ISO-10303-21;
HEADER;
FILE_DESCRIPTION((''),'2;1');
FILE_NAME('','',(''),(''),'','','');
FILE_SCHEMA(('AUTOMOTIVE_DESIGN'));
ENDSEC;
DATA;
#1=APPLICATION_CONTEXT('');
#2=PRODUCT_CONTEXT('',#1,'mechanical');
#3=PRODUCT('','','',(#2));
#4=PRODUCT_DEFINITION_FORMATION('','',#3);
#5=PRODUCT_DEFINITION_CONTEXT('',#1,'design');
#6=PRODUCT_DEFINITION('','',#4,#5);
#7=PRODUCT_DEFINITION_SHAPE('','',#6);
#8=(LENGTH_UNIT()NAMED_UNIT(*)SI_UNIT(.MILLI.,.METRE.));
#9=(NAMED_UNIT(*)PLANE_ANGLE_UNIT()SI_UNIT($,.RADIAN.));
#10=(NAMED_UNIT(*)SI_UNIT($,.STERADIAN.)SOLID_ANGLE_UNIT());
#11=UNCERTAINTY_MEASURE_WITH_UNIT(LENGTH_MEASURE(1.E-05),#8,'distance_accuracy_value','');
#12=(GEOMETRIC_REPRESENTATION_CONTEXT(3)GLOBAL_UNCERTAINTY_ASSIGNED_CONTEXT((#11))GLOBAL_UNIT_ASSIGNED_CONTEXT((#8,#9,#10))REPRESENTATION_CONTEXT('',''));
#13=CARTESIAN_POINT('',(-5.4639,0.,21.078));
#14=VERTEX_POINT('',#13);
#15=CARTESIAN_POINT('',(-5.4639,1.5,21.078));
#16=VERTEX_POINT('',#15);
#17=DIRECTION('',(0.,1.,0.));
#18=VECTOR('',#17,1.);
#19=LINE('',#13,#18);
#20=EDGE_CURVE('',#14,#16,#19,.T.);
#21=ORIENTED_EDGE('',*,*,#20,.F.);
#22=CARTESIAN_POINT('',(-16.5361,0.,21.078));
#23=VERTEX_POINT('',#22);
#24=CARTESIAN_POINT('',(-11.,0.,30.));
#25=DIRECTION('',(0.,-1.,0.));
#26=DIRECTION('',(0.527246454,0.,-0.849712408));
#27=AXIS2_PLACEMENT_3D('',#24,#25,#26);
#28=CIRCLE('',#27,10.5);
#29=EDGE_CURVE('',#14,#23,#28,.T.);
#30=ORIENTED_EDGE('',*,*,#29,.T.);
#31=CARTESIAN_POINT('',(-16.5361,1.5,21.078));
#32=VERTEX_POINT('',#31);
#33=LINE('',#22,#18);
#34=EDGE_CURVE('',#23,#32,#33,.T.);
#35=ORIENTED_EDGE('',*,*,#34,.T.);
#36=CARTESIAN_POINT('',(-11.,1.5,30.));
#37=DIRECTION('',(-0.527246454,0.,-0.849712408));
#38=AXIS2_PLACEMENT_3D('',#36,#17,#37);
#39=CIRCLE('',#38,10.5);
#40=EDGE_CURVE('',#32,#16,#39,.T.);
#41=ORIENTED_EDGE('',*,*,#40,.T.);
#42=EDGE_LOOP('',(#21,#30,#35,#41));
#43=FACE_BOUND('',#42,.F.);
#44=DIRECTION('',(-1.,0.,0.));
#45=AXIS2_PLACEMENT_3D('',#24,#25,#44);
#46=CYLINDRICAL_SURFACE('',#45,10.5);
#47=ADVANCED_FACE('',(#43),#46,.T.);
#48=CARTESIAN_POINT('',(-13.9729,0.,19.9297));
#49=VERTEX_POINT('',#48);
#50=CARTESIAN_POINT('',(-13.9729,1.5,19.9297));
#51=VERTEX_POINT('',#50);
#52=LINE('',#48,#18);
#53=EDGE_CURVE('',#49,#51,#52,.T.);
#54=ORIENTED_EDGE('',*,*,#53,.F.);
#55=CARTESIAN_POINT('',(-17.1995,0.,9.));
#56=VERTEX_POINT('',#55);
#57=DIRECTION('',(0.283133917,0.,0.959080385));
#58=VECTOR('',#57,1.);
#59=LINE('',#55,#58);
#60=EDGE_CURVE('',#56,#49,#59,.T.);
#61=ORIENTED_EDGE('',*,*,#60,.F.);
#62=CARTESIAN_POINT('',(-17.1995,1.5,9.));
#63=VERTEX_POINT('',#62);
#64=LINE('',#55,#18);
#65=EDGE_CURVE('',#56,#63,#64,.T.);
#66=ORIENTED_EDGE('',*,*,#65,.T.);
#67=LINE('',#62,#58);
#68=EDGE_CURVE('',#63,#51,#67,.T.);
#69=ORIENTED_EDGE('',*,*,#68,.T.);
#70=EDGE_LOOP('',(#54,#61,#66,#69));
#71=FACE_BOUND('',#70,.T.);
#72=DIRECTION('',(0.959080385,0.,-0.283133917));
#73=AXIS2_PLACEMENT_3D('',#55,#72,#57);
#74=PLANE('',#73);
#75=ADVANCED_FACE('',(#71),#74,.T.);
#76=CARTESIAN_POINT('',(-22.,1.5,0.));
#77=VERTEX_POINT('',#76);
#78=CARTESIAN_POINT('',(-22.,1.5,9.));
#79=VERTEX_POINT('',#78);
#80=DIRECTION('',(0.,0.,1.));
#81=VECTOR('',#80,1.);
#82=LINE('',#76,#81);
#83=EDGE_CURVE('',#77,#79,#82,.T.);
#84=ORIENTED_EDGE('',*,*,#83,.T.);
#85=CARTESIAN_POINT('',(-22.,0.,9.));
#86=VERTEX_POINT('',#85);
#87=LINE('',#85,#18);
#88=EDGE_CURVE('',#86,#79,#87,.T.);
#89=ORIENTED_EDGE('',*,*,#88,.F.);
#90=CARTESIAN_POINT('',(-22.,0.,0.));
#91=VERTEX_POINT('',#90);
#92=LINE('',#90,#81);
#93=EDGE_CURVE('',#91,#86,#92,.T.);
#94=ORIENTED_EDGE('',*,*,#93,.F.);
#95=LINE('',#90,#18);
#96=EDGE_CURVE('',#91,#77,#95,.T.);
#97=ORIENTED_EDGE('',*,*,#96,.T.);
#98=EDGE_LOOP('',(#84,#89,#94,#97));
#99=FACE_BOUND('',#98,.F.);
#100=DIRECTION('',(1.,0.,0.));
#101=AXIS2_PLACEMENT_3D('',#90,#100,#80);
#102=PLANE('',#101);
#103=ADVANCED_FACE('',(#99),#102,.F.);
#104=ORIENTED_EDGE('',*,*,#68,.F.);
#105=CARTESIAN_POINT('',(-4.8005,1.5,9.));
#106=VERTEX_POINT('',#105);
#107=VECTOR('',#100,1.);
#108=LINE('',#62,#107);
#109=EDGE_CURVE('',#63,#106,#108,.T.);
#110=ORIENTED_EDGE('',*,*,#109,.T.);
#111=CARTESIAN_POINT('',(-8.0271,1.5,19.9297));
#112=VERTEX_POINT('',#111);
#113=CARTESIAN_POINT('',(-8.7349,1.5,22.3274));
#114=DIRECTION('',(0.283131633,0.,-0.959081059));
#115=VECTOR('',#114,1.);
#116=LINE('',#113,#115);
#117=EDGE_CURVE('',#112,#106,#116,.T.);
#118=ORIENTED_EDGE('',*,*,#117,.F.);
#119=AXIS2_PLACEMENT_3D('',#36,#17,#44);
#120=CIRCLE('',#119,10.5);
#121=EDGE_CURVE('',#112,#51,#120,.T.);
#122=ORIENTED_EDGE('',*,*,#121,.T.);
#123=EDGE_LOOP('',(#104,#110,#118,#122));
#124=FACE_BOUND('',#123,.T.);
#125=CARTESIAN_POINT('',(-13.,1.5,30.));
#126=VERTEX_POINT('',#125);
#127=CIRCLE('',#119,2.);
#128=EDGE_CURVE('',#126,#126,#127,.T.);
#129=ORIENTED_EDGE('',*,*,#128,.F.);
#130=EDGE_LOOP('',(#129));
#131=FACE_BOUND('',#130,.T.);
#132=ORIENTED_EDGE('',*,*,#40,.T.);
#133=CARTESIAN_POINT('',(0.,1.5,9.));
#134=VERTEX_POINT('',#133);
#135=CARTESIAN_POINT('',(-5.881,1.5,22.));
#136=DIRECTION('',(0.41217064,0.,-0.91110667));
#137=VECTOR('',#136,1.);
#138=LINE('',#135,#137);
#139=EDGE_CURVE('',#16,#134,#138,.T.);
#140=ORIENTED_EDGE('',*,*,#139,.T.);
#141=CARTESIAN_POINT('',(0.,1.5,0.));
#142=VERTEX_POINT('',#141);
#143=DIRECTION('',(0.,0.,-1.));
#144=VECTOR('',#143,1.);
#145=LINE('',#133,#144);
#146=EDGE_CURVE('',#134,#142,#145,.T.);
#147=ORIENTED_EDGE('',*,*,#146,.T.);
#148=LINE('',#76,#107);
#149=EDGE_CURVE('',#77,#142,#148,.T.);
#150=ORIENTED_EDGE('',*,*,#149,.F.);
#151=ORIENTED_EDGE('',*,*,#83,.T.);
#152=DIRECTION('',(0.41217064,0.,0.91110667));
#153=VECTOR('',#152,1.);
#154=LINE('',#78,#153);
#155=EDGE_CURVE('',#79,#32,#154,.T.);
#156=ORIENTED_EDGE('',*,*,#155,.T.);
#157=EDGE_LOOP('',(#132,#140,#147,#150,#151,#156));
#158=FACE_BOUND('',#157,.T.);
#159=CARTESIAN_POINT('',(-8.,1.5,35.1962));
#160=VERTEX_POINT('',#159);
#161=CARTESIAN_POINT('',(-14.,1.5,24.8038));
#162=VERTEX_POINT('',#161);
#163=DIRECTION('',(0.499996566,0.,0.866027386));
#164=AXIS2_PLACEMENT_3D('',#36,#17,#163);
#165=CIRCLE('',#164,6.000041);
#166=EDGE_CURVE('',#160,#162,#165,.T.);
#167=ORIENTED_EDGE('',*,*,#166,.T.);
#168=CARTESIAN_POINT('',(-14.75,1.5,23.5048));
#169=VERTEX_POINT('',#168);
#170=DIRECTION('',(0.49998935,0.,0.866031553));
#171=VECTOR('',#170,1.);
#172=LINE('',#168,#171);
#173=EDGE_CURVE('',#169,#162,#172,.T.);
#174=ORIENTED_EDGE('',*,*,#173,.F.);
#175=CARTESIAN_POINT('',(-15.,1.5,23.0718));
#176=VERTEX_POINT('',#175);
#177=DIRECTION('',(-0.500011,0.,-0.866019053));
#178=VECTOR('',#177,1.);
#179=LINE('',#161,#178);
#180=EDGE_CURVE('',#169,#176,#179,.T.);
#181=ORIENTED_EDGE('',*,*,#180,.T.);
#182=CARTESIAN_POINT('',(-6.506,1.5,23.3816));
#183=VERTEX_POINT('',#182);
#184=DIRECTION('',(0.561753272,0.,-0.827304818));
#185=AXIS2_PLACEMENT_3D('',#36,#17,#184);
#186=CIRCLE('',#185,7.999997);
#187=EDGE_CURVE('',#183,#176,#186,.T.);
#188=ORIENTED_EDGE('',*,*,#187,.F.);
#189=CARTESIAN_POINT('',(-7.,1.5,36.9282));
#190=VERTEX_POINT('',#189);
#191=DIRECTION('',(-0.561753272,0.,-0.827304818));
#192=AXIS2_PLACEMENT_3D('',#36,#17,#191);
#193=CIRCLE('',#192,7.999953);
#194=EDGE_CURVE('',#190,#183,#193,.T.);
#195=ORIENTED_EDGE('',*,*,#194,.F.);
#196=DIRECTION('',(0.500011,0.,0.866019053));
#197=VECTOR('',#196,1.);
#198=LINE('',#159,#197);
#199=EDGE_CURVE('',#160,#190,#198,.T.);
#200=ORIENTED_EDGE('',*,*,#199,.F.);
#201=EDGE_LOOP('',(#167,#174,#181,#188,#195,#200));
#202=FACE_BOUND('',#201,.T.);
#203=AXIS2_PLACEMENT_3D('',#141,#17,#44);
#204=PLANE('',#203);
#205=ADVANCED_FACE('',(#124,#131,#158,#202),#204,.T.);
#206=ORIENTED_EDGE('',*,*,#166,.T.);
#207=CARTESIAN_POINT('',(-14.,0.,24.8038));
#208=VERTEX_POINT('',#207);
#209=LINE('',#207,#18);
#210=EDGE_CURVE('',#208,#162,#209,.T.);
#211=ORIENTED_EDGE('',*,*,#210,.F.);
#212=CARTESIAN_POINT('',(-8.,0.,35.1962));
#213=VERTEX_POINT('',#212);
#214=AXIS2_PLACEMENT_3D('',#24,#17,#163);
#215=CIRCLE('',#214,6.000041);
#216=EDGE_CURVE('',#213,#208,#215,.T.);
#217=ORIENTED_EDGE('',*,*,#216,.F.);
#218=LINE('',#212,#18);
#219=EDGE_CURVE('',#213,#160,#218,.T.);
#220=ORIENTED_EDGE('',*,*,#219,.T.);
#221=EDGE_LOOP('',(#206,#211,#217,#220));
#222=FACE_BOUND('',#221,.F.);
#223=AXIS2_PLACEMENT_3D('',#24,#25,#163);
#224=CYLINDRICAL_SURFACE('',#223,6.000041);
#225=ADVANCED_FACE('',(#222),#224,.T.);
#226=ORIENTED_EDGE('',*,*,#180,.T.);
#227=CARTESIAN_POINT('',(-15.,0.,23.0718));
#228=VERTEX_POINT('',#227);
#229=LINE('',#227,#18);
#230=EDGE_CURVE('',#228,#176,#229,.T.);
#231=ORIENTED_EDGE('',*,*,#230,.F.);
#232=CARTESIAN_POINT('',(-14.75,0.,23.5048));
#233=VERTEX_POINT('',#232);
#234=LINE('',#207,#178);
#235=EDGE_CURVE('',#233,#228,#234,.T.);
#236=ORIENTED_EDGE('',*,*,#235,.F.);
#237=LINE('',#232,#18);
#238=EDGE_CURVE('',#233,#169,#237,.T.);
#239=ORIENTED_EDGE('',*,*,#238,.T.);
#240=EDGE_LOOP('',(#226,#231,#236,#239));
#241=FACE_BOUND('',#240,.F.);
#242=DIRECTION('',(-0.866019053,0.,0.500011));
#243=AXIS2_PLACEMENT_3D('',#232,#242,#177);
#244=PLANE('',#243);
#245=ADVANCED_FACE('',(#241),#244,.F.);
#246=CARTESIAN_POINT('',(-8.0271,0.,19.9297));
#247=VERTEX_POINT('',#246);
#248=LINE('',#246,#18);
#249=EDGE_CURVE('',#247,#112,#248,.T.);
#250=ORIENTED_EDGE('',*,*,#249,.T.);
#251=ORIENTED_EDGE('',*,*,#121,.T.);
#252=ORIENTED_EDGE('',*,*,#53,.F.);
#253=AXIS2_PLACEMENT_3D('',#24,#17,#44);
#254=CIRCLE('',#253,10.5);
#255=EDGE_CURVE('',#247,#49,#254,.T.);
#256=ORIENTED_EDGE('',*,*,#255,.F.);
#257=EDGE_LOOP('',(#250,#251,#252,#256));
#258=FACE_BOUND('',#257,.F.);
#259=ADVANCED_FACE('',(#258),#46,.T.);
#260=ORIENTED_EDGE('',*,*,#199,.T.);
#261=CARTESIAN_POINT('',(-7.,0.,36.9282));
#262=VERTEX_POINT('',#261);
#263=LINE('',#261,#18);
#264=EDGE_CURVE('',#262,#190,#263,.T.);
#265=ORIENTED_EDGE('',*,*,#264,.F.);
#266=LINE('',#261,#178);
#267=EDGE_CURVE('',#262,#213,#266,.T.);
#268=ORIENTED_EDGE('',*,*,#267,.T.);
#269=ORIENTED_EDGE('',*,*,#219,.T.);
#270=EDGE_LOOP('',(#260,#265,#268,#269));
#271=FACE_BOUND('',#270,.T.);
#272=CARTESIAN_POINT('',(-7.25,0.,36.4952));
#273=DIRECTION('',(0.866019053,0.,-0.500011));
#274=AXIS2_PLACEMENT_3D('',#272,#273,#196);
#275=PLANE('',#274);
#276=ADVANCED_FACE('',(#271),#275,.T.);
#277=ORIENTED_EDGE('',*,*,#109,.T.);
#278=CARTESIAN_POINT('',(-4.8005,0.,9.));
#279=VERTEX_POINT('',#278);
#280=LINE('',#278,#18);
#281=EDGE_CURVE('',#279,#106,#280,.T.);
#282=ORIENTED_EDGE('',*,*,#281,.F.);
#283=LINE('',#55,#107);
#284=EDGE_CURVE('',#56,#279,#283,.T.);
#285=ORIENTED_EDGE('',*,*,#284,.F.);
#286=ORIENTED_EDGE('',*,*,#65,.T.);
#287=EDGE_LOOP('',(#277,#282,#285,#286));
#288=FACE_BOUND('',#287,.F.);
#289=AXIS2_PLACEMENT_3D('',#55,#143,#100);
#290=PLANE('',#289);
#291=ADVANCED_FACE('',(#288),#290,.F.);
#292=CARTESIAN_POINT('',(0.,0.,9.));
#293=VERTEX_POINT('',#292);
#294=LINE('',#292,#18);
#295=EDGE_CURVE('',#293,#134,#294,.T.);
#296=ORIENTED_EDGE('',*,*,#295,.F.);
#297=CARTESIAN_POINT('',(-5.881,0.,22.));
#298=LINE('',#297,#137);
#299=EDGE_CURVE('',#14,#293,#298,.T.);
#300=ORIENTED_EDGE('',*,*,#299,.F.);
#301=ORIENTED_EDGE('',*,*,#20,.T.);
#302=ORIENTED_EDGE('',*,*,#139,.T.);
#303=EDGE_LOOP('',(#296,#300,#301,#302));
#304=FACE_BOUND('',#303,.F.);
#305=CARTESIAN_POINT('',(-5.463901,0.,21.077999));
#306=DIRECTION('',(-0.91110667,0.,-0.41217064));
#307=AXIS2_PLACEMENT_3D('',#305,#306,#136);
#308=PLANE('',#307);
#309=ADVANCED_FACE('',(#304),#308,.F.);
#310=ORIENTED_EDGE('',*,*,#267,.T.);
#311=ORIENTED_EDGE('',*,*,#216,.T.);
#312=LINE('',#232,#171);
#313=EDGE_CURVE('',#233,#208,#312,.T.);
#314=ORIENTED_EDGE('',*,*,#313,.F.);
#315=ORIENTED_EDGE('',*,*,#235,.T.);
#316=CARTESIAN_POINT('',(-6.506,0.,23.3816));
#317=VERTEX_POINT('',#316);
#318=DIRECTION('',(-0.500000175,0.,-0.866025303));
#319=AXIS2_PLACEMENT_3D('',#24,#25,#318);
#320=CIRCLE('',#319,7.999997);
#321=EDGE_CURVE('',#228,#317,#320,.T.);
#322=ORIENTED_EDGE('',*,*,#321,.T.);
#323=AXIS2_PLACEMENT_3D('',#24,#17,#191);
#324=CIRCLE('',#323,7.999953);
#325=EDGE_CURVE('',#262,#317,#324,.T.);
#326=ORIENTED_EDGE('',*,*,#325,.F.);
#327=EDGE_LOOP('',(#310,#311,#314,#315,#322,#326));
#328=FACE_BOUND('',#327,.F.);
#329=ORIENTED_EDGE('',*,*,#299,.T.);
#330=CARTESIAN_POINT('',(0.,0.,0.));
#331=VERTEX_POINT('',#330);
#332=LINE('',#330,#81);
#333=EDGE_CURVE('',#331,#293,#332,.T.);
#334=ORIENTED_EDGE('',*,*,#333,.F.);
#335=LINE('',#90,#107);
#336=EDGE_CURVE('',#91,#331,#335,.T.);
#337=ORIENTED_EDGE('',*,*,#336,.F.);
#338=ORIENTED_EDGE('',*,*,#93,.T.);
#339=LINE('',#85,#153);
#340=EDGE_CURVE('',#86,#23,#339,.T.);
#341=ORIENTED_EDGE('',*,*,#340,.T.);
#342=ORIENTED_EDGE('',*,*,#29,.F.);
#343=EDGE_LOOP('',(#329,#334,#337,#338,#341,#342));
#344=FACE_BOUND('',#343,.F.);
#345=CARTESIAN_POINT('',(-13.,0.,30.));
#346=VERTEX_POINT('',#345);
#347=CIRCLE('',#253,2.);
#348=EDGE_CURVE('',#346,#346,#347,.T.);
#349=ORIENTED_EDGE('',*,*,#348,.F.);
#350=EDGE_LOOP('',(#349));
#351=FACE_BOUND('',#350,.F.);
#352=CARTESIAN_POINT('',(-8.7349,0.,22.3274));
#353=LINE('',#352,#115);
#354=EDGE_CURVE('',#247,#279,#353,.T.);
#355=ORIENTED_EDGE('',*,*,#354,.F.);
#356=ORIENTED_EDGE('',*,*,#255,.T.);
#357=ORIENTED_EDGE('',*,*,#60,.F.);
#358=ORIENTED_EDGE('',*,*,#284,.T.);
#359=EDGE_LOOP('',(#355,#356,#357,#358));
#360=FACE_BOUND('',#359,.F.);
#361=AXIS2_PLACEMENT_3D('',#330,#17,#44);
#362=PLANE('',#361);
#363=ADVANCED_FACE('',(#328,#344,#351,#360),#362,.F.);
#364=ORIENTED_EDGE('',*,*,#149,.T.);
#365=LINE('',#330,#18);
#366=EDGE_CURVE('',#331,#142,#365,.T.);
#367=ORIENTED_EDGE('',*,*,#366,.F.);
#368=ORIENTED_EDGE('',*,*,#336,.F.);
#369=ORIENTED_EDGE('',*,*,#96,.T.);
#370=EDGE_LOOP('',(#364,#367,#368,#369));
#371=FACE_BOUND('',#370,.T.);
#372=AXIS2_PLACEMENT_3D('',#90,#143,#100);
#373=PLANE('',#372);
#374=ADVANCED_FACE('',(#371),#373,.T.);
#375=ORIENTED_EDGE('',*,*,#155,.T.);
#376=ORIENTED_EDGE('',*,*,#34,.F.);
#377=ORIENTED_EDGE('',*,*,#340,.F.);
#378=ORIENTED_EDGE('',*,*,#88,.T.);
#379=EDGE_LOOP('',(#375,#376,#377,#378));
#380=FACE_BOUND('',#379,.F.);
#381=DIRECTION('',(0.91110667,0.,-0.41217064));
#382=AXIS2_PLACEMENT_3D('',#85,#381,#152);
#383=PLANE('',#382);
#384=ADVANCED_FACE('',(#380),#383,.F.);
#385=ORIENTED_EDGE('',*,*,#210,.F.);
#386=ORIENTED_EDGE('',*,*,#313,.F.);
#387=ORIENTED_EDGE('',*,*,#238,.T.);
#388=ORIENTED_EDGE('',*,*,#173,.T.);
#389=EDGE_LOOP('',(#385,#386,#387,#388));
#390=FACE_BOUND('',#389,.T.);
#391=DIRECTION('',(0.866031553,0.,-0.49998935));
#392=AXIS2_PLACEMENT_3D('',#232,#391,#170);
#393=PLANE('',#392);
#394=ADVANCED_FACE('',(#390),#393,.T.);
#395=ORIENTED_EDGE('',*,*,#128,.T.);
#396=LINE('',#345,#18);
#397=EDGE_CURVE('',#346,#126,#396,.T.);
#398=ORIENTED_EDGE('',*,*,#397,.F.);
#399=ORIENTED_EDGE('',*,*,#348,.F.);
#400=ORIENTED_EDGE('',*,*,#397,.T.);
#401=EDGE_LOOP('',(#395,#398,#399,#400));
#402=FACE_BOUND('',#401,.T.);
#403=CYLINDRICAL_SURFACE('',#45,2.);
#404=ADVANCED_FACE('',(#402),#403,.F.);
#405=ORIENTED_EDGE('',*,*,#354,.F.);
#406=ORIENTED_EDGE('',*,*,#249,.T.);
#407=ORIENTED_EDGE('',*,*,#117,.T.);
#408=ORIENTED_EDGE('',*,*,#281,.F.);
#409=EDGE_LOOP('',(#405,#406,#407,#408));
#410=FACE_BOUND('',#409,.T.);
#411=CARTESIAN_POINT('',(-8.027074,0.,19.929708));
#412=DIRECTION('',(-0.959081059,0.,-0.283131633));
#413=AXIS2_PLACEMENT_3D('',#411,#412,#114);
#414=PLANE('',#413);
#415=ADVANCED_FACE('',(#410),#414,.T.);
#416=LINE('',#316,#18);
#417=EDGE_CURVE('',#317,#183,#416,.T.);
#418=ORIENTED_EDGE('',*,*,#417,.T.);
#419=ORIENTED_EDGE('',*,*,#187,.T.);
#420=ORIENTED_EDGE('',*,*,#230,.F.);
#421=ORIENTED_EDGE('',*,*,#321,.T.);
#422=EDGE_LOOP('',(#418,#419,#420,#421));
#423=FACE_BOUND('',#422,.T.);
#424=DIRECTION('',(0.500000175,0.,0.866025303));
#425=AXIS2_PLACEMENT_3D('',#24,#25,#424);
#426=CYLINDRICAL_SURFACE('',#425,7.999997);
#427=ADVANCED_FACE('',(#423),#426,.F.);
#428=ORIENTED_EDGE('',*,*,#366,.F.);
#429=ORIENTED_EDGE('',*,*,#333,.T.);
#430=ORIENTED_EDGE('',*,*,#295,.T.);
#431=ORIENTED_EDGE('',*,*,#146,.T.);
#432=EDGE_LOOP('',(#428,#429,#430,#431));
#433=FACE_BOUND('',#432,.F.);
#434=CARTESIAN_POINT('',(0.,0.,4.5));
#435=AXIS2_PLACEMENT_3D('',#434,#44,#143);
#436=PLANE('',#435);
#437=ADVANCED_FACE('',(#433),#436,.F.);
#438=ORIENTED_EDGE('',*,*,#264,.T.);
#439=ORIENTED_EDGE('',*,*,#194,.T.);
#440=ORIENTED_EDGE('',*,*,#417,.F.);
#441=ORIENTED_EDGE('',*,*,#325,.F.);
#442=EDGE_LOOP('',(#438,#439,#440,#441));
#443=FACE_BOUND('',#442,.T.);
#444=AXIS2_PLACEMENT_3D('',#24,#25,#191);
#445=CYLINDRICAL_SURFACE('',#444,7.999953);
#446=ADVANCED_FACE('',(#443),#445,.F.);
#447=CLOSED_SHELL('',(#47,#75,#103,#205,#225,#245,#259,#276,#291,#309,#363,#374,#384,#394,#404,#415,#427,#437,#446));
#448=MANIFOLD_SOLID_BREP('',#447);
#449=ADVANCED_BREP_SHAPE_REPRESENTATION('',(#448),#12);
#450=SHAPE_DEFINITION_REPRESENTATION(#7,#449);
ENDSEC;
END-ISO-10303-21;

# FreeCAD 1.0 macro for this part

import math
import FreeCAD as App
import Part
import Sketcher
from FreeCAD import Vector
Q = App.Units.Quantity

doc = App.newDocument("Part")
body = doc.addObject("PartDesign::Body", "Body")

# Sketch on XZ plane
sketch1 = doc.addObject("Sketcher::SketchObject", "Sketch")
body.addObject(sketch1)
sketch1.AttachmentSupport = (doc.XZ_Plane, [""])
sketch1.MapMode = "FlatFace"
sketch1.addGeometry([
    Part.LineSegment(Vector(-5.46, 21.08, 0), Vector(0, 9, 0)),  # 0
    Part.LineSegment(Vector(0, 9, 0), Vector(0, 0, 0)),  # 1
    Part.LineSegment(Vector(0, 0, 0), Vector(-22, 0, 0)),  # 2
    Part.LineSegment(Vector(-22, 0, 0), Vector(-22, 9, 0)),  # 3
    Part.LineSegment(Vector(-22, 9, 0), Vector(-16.54, 21.08, 0)),  # 4
    Part.ArcOfCircle(Part.Circle(Vector(-11, 30, 0), Vector(0, 0, 1), 10.5), math.radians(-58), math.radians(238)),  # 5
    Part.LineSegment(Vector(-7, 36.93, 0), Vector(-8, 35.2, 0)),  # 6
    Part.ArcOfCircle(Part.Circle(Vector(-11, 30, 0), Vector(0, 0, 1), 6), math.radians(-120), math.radians(60)),  # 7
    Part.LineSegment(Vector(-14, 24.8, 0), Vector(-14.75, 23.5, 0)),  # 8
    Part.LineSegment(Vector(-14.75, 23.5, 0), Vector(-15, 23.07, 0)),  # 9
    Part.ArcOfCircle(Part.Circle(Vector(-11, 30, 0), Vector(0, 0, 1), 8), math.radians(-120), math.radians(60)),  # 10
    Part.Circle(Vector(-11, 30, 0), Vector(0, 0, 1), 2),  # 11
    Part.ArcOfCircle(Part.Circle(Vector(-11, 30, 0), Vector(0, 0, 1), 10.5), math.radians(-106), math.radians(-74)),  # 12
    Part.LineSegment(Vector(-13.97, 19.93, 0), Vector(-17.2, 9, 0)),  # 13
    Part.LineSegment(Vector(-17.2, 9, 0), Vector(-4.8, 9, 0)),  # 14
    Part.LineSegment(Vector(-4.8, 9, 0), Vector(-8.03, 19.93, 0)),  # 15
], False)
sketch1.addConstraint([
    Sketcher.Constraint("Coincident", 0, 2, 1, 1),
    Sketcher.Constraint("Coincident", 1, 2, 2, 1),
    Sketcher.Constraint("Coincident", 2, 2, 3, 1),
    Sketcher.Constraint("Coincident", 3, 2, 4, 1),
    Sketcher.Constraint("Coincident", 4, 2, 5, 2),
    Sketcher.Constraint("Coincident", 5, 1, 0, 1),
    Sketcher.Constraint("Coincident", 6, 2, 7, 2),
    Sketcher.Constraint("Coincident", 7, 1, 8, 1),
    Sketcher.Constraint("Coincident", 8, 2, 9, 1),
    Sketcher.Constraint("Coincident", 9, 2, 10, 1),
    Sketcher.Constraint("Coincident", 10, 2, 6, 1),
    Sketcher.Constraint("Coincident", 12, 1, 13, 1),
    Sketcher.Constraint("Coincident", 13, 2, 14, 1),
    Sketcher.Constraint("Coincident", 14, 2, 15, 1),
    Sketcher.Constraint("Coincident", 15, 2, 12, 2),
    Sketcher.Constraint("Vertical", 1),
    Sketcher.Constraint("Horizontal", 2),
    Sketcher.Constraint("Vertical", 3),
    Sketcher.Constraint("Horizontal", 14),
    Sketcher.Constraint("Coincident", 1, 2, -1, 1),
    Sketcher.Constraint("Coincident", 7, 3, 5, 3),
    Sketcher.Constraint("Coincident", 10, 3, 5, 3),
    Sketcher.Constraint("Coincident", 11, 3, 5, 3),
    Sketcher.Constraint("Coincident", 12, 3, 5, 3),
    Sketcher.Constraint("Equal", 5, 12),
    Sketcher.Constraint("Parallel", 6, 8),
    Sketcher.Constraint("Parallel", 8, 9),
    Sketcher.Constraint("Horizontal", 0, 2, 3, 2),
    Sketcher.Constraint("Horizontal", 4, 2, 5, 1),
    Sketcher.Constraint("Horizontal", 3, 2, 13, 2),
    Sketcher.Constraint("Horizontal", 12, 1, 15, 2),
    Sketcher.Constraint("Equal", 0, 4),
    Sketcher.Constraint("Equal", 13, 15),
    Sketcher.Constraint("Radius", 7, Q("6 mm")),
    Sketcher.Constraint("Radius", 10, Q("8 mm")),
    Sketcher.Constraint("Radius", 5, Q("10.5 mm")),
    Sketcher.Constraint("Diameter", 11, Q("4 mm")),
    Sketcher.Constraint("DistanceX", 6, 2, -1, 1, Q("8 mm")),
    Sketcher.Constraint("DistanceY", 0, 2, 5, 3, Q("21 mm")),
    Sketcher.Constraint("DistanceX", 2, 2, 2, 1, Q("22 mm")),
    Sketcher.Constraint("DistanceY", 1, 2, 1, 1, Q("9 mm")),
    Sketcher.Constraint("Angle", 6, Q("-120.0007 deg")),
    Sketcher.Constraint("DistanceX", 7, 1, -1, 1, Q("14 mm")),
    Sketcher.Constraint("Distance", 8, Q("1.5 mm")),
    Sketcher.Constraint("DistanceX", 14, 1, 14, 2, Q("12.399 mm")),
    Sketcher.Constraint("DistanceX", 4, 2, -1, 1, Q("16.536 mm")),
    Sketcher.Constraint("DistanceX", 12, 1, -1, 1, Q("13.973 mm")),
])
pad1 = doc.addObject("PartDesign::Pad", "Pad")
body.addObject(pad1)
pad1.Profile = sketch1
pad1.Length = 1.5
pad1.Reversed = True

doc.recompute()
